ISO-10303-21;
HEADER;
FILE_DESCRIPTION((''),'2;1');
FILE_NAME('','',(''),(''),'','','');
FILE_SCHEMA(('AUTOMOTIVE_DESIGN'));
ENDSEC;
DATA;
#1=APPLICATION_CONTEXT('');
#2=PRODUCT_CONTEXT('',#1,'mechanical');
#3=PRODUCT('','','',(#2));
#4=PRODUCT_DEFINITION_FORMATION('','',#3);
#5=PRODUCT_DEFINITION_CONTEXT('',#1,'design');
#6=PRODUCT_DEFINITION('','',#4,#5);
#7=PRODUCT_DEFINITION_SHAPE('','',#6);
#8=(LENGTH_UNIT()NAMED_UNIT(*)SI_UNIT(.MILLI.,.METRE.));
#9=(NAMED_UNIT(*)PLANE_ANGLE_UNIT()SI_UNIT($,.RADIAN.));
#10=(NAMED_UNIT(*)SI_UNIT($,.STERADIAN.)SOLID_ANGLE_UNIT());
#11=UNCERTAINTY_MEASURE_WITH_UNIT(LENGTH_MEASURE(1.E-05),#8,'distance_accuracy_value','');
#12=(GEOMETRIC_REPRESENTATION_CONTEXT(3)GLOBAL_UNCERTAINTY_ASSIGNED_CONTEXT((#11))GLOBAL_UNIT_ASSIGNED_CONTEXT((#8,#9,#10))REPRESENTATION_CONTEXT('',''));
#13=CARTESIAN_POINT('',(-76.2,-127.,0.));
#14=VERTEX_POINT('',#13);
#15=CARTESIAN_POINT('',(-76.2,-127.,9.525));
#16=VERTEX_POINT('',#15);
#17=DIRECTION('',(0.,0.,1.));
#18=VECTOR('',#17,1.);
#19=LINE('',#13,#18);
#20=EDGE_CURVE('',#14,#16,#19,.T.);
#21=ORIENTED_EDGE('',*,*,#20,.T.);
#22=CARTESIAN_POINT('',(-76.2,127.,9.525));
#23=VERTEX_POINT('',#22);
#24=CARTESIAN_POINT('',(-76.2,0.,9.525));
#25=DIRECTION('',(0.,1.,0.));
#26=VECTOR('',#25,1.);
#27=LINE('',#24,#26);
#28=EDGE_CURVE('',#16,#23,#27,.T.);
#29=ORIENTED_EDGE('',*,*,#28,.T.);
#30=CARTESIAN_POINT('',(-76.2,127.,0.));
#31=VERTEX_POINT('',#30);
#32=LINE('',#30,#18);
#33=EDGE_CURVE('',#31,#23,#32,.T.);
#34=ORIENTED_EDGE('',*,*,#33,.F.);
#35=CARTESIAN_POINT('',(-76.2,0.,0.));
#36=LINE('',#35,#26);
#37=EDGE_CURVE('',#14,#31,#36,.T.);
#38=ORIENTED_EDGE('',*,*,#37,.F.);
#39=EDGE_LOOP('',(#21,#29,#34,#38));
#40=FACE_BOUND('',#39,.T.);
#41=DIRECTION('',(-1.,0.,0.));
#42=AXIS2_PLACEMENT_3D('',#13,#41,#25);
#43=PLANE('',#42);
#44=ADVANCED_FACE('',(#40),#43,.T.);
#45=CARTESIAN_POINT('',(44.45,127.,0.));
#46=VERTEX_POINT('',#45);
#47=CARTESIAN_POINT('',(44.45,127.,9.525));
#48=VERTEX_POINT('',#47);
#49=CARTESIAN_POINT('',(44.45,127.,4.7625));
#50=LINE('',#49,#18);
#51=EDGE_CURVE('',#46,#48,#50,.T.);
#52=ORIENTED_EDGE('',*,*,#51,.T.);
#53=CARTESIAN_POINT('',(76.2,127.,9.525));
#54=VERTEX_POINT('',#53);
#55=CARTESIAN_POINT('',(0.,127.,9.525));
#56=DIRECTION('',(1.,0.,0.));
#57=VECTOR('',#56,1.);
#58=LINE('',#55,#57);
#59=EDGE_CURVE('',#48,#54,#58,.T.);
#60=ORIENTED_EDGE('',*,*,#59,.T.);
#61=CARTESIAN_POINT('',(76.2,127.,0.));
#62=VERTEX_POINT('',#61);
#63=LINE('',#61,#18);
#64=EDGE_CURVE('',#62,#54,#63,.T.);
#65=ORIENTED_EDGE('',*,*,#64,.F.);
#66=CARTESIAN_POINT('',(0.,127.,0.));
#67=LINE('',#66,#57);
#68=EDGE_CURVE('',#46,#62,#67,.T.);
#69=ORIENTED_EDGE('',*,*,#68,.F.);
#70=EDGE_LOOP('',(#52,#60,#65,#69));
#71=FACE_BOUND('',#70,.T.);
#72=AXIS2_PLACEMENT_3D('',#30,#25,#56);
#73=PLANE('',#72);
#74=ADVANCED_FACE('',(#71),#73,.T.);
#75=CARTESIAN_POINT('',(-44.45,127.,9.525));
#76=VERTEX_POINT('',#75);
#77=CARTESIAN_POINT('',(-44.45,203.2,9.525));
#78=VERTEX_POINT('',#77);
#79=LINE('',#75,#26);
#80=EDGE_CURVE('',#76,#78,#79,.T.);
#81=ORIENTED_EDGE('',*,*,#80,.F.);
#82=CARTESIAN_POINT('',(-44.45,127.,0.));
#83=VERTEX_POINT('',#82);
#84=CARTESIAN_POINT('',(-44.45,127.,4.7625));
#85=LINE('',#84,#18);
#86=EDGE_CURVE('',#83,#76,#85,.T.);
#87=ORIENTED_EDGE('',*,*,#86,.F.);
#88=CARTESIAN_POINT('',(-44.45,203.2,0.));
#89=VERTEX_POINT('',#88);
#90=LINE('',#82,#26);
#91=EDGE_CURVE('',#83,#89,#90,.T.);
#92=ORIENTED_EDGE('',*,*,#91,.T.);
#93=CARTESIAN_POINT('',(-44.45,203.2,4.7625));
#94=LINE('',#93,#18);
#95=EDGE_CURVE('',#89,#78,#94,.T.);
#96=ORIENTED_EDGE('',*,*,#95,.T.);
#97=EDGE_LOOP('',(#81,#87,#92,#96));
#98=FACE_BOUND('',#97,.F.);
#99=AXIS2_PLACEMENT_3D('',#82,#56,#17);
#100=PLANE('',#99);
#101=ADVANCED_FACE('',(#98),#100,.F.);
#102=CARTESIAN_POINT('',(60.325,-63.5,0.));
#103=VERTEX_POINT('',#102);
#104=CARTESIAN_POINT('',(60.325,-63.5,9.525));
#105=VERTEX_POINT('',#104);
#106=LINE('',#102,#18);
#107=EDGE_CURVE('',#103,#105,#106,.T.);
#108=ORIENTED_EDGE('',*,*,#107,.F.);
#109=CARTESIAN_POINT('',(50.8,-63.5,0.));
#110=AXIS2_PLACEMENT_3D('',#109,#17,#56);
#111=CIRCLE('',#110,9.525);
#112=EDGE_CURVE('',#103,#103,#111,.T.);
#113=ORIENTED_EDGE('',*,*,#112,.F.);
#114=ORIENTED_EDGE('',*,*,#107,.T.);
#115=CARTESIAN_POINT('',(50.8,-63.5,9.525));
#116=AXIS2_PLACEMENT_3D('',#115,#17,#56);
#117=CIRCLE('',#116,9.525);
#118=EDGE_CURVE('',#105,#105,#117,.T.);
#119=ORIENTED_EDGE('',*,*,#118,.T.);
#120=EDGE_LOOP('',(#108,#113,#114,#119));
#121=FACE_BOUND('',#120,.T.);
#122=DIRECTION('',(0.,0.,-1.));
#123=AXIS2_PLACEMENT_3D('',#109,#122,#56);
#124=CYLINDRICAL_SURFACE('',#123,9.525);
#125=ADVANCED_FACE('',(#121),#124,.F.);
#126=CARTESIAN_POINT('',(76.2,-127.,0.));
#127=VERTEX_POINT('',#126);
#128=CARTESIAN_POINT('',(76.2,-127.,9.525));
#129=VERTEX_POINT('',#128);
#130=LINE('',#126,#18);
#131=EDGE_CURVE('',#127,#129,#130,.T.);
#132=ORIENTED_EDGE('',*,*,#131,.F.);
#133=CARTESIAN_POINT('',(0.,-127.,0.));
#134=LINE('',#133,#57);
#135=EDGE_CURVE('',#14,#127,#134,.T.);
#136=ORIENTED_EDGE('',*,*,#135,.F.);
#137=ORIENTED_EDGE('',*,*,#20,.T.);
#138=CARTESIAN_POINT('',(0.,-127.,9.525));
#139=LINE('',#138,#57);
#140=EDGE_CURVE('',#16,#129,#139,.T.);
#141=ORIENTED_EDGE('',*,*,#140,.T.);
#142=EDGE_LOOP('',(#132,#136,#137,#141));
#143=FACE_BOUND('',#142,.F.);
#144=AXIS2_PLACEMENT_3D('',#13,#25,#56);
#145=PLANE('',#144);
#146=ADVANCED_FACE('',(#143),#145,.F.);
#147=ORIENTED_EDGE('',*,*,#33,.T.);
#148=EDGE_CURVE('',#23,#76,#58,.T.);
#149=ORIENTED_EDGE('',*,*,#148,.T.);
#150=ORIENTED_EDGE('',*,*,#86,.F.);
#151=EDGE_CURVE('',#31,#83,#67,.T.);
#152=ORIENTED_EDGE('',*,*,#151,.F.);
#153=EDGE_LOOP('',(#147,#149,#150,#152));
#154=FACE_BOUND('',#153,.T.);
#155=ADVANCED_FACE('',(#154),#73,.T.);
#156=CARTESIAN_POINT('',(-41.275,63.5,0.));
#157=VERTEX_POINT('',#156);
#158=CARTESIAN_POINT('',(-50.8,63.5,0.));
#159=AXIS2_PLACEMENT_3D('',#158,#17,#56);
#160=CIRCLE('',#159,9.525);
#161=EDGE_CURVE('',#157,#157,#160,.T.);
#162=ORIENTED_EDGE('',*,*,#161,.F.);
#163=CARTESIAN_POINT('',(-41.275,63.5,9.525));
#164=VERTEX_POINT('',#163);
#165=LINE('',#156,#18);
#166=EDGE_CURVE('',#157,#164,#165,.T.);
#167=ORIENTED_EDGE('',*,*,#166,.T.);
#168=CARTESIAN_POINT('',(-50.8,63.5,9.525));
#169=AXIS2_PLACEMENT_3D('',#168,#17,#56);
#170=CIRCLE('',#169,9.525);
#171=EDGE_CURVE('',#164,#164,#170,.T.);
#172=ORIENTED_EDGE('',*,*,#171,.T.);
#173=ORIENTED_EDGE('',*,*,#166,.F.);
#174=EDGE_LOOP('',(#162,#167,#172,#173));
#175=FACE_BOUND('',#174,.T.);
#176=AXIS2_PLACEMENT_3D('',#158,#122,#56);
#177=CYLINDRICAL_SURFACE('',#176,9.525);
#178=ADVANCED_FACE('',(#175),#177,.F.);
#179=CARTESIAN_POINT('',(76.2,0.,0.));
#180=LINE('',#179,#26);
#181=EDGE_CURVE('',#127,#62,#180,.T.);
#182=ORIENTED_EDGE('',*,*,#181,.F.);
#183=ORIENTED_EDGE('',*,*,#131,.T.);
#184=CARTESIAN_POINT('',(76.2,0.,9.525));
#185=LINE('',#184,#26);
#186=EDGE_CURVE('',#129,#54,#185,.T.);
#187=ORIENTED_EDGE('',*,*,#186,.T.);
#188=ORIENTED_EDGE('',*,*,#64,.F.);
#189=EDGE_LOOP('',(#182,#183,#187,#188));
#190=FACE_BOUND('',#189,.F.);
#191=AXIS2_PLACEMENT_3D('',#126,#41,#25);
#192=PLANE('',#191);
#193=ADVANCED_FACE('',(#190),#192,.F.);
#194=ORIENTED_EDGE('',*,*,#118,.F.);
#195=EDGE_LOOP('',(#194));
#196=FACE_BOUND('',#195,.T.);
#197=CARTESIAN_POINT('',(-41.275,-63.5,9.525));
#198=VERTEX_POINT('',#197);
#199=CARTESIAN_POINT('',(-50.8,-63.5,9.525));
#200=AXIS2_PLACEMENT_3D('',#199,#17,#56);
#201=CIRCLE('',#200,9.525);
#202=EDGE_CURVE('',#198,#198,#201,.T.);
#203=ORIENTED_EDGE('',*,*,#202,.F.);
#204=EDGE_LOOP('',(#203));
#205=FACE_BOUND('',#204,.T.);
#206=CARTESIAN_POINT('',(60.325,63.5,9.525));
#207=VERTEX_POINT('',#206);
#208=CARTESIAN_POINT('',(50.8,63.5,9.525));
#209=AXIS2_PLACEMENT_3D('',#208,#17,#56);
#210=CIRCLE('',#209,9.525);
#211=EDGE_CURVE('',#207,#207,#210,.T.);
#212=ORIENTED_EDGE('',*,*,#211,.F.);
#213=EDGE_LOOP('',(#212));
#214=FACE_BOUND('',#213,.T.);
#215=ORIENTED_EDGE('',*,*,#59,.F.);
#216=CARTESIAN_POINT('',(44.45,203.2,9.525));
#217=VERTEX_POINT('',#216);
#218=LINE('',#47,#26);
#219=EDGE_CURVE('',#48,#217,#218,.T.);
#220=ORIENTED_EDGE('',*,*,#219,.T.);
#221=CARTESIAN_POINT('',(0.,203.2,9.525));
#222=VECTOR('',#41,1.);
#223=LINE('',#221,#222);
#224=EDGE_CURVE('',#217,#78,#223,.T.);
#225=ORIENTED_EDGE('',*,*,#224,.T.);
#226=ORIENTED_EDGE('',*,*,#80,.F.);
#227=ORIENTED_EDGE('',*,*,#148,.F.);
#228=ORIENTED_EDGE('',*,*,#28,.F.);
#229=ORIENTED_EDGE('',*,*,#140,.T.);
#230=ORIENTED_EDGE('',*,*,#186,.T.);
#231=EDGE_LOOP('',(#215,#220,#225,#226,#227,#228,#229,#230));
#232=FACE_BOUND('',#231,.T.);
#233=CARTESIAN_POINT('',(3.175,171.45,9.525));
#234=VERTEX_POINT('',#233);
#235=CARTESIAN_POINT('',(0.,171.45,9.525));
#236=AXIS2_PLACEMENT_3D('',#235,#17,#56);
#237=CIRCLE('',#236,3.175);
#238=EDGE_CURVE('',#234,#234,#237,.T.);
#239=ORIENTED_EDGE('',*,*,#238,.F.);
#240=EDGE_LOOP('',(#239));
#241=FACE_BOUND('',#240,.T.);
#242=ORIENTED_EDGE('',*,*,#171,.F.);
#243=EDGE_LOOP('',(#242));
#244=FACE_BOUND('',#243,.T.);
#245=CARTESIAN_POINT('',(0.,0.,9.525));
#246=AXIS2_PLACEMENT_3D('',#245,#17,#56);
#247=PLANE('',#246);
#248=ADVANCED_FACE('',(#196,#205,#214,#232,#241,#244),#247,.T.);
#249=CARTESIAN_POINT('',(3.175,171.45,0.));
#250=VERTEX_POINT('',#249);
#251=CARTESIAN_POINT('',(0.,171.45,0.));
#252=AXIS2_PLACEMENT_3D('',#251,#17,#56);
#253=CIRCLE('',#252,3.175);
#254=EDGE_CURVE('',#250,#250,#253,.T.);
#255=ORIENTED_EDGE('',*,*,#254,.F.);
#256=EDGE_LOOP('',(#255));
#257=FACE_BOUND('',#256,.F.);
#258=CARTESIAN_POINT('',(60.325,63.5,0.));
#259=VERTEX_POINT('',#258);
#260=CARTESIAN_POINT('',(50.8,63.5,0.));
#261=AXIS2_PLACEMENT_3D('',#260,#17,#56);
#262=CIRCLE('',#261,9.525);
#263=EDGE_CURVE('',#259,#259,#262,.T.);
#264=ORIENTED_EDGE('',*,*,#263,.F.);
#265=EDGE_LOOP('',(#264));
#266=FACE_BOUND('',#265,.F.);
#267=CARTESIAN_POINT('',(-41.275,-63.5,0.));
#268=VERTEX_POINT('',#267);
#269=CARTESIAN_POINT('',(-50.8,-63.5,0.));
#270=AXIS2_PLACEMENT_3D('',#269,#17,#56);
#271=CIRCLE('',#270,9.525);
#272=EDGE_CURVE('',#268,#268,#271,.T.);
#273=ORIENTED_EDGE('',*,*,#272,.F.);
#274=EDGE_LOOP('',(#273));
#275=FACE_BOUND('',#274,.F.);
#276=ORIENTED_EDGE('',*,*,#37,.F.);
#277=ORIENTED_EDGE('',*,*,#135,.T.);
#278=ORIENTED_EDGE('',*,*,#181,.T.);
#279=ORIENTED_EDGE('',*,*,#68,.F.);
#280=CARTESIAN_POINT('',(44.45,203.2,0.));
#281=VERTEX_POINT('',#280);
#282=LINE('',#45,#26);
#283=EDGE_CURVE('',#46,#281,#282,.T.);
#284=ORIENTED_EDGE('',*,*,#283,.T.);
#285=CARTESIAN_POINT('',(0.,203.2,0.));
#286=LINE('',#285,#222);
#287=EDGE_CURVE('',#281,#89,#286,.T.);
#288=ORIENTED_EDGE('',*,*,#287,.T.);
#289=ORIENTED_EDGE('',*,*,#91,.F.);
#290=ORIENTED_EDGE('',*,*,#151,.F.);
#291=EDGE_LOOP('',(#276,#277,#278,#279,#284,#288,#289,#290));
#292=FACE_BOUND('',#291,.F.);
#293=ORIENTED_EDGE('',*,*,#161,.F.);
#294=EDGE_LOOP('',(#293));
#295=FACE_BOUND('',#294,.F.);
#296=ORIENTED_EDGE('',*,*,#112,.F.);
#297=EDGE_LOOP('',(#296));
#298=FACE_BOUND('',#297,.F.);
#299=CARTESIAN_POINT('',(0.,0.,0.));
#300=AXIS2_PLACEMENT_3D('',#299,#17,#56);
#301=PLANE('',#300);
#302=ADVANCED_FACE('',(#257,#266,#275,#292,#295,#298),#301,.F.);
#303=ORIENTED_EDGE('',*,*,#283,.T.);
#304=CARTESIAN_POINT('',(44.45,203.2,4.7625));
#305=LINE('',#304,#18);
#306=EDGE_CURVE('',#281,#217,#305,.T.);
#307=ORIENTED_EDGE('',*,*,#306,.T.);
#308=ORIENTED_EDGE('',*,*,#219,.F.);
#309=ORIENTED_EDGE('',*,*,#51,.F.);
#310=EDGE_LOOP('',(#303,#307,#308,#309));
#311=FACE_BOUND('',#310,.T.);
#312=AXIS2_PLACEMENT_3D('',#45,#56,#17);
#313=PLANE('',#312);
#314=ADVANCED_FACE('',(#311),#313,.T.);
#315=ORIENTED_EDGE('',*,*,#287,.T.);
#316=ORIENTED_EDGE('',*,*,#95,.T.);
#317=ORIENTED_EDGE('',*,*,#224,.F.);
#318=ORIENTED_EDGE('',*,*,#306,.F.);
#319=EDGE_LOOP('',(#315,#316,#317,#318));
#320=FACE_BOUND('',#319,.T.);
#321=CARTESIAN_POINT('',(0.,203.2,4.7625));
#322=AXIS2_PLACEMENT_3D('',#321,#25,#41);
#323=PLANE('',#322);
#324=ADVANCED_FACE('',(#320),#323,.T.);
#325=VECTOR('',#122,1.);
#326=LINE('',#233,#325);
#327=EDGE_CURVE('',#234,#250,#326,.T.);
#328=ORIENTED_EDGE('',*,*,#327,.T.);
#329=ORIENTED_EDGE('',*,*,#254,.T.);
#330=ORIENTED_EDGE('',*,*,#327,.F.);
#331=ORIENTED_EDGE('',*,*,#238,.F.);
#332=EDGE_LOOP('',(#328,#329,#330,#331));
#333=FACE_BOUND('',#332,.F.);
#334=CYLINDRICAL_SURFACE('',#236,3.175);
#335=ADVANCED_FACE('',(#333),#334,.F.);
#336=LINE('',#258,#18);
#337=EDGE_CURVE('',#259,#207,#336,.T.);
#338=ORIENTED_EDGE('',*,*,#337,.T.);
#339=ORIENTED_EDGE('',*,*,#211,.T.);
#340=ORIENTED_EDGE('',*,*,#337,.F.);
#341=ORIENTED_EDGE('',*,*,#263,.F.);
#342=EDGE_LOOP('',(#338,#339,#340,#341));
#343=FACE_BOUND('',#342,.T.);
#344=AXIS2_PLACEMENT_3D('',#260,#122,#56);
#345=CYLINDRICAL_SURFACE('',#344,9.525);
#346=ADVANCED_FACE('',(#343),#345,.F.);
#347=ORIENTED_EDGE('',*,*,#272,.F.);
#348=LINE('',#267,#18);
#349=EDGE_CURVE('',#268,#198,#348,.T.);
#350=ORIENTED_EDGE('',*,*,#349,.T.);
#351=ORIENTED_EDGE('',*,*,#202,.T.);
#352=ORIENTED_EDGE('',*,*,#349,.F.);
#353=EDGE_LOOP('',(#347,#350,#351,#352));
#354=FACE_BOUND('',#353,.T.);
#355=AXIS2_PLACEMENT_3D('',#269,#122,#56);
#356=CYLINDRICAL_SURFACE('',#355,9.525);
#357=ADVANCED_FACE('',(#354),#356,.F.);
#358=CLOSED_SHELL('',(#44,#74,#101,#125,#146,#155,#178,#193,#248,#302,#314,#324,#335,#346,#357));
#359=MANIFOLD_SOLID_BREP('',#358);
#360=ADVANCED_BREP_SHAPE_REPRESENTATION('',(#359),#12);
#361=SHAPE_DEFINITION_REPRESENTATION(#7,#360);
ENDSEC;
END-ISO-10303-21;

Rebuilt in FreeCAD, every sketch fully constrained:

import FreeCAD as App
import Part
import Sketcher
from FreeCAD import Vector
Q = App.Units.Quantity

doc = App.newDocument("Part")
params = doc.addObject("Spreadsheet::Sheet", "Params")
for row, (alias, value) in enumerate([
    ("sketch1_diameter", "0.75 in"),
    ("sketch1_width", "6 in"),
    ("sketch1_height", "10 in"),
    ("pad1_length", "0.375 in"),
    ("sketch2_width", "3.5 in"),
    ("sketch2_height", "0.375 in"),
    ("pad2_length", "3 in"),
    ("sketch3_diameter", "0.25 in"),
], start=1):
    params.set(f"A{row}", alias)
    params.set(f"B{row}", "=" + value)
    params.setAlias(f"B{row}", alias)

body = doc.addObject("PartDesign::Body", "Body")

# Sketch on XY plane
sketch1 = body.newObject("Sketcher::SketchObject", "Sketch")
sketch1.AttachmentSupport = (doc.getObject("XY_Plane"), [""])
sketch1.MapMode = "FlatFace"
sketch1.addGeometry(Part.LineSegment(Vector(-76, 127, 0), Vector(-76, -127, 0)), False)
sketch1.addGeometry(Part.LineSegment(Vector(-76, -127, 0), Vector(76, -127, 0)), False)
sketch1.addGeometry(Part.LineSegment(Vector(76, -127, 0), Vector(76, 127, 0)), False)
sketch1.addGeometry(Part.LineSegment(Vector(76, 127, 0), Vector(-76, 127, 0)), False)
sketch1.addGeometry(Part.Circle(Vector(-51, -64, 0), Vector(0, 0, 1), 10), False)
sketch1.addGeometry(Part.Circle(Vector(51, -64, 0), Vector(0, 0, 1), 10), False)
sketch1.addGeometry(Part.Circle(Vector(-51, 64, 0), Vector(0, 0, 1), 10), False)
sketch1.addGeometry(Part.Circle(Vector(51, 64, 0), Vector(0, 0, 1), 10), False)
sketch1.addConstraint(Sketcher.Constraint("Coincident", 0, 2, 1, 1))
sketch1.addConstraint(Sketcher.Constraint("Coincident", 1, 2, 2, 1))
sketch1.addConstraint(Sketcher.Constraint("Coincident", 2, 2, 3, 1))
sketch1.addConstraint(Sketcher.Constraint("Coincident", 3, 2, 0, 1))
sketch1.addConstraint(Sketcher.Constraint("Vertical", 0))
sketch1.addConstraint(Sketcher.Constraint("Horizontal", 1))
sketch1.addConstraint(Sketcher.Constraint("Vertical", 2))
sketch1.addConstraint(Sketcher.Constraint("Horizontal", 3))
sketch1.addConstraint(Sketcher.Constraint("Equal", 4, 5))
sketch1.addConstraint(Sketcher.Constraint("Equal", 5, 6))
sketch1.addConstraint(Sketcher.Constraint("Equal", 6, 7))
sketch1.addConstraint(Sketcher.Constraint("Symmetric", 5, 3, 6, 3, -1, 1))
sketch1.addConstraint(Sketcher.Constraint("Symmetric", 4, 3, 7, 3, -1, 1))
sketch1.addConstraint(Sketcher.Constraint("Symmetric", 0, 2, 2, 2, -1, 1))
sketch1.addConstraint(Sketcher.Constraint("Symmetric", 4, 3, 5, 3, -2))
sketch1.addConstraint(Sketcher.Constraint("Diameter", 4, Q("0.75 in")))
sketch1.addConstraint(Sketcher.Constraint("DistanceX", 1, 1, 1, 2, Q("6 in")))
sketch1.addConstraint(Sketcher.Constraint("DistanceY", 0, 2, 0, 1, Q("10 in")))
sketch1.addConstraint(Sketcher.Constraint("DistanceX", 4, 3, -1, 1, Q("2 in")))
sketch1.addConstraint(Sketcher.Constraint("DistanceY", 4, 3, 6, 3, Q("5 in")))
sketch1.setExpression("Constraints[15]", "Params.sketch1_diameter")
sketch1.setExpression("Constraints[16]", "Params.sketch1_width")
sketch1.setExpression("Constraints[17]", "Params.sketch1_height")
pad1 = body.newObject("PartDesign::Pad", "Pad")
pad1.Profile = sketch1
pad1.setExpression("Length", "Params.pad1_length")

# Sketch on XZ plane
sketch2 = body.newObject("Sketcher::SketchObject", "Sketch001")
sketch2.AttachmentSupport = (doc.getObject("XZ_Plane"), [""])
sketch2.MapMode = "FlatFace"
sketch2.AttachmentOffset = App.Placement(Vector(0, 0, -5 * 25.4), App.Rotation())
sketch2.addGeometry(Part.LineSegment(Vector(44, 10, 0), Vector(44, 0, 0)), False)
sketch2.addGeometry(Part.LineSegment(Vector(44, 0, 0), Vector(-44, 0, 0)), False)
sketch2.addGeometry(Part.LineSegment(Vector(-44, 0, 0), Vector(-44, 10, 0)), False)
sketch2.addGeometry(Part.LineSegment(Vector(-44, 10, 0), Vector(44, 10, 0)), False)
sketch2.addConstraint(Sketcher.Constraint("Coincident", 0, 2, 1, 1))
sketch2.addConstraint(Sketcher.Constraint("Coincident", 1, 2, 2, 1))
sketch2.addConstraint(Sketcher.Constraint("Coincident", 2, 2, 3, 1))
sketch2.addConstraint(Sketcher.Constraint("Coincident", 3, 2, 0, 1))
sketch2.addConstraint(Sketcher.Constraint("Vertical", 0))
sketch2.addConstraint(Sketcher.Constraint("Horizontal", 1))
sketch2.addConstraint(Sketcher.Constraint("Vertical", 2))
sketch2.addConstraint(Sketcher.Constraint("Horizontal", 3))
sketch2.addConstraint(Sketcher.Constraint("Symmetric", 0, 2, 1, 2, -1, 1))
sketch2.addConstraint(Sketcher.Constraint("DistanceX", 1, 2, 1, 1, Q("3.5 in")))
sketch2.addConstraint(Sketcher.Constraint("DistanceY", 0, 2, 0, 1, Q("0.375 in")))
sketch2.setExpression("Constraints[9]", "Params.sketch2_width")
sketch2.setExpression("Constraints[10]", "Params.sketch2_height")
pad2 = body.newObject("PartDesign::Pad", "Pad001")
pad2.Profile = sketch2
pad2.setExpression("Length", "Params.pad2_length")
pad2.Reversed = True

# Sketch on XY plane
sketch3 = body.newObject("Sketcher::SketchObject", "Sketch002")
sketch3.AttachmentSupport = (doc.getObject("XY_Plane"), [""])
sketch3.MapMode = "FlatFace"
sketch3.AttachmentOffset = App.Placement(Vector(0, 0, 0.375 * 25.4), App.Rotation())
sketch3.addGeometry(Part.Circle(Vector(0, 171.4, 0), Vector(0, 0, 1), 3.2), False)
sketch3.addConstraint(Sketcher.Constraint("PointOnObject", 0, 3, -2))
sketch3.addConstraint(Sketcher.Constraint("Diameter", 0, Q("0.25 in")))
sketch3.addConstraint(Sketcher.Constraint("DistanceY", -1, 1, 0, 3, Q("6.75 in")))
sketch3.setExpression("Constraints[1]", "Params.sketch3_diameter")
pocket1 = body.newObject("PartDesign::Pocket", "Pocket")
pocket1.Profile = sketch3
pocket1.Type = "ThroughAll"

doc.recompute()
